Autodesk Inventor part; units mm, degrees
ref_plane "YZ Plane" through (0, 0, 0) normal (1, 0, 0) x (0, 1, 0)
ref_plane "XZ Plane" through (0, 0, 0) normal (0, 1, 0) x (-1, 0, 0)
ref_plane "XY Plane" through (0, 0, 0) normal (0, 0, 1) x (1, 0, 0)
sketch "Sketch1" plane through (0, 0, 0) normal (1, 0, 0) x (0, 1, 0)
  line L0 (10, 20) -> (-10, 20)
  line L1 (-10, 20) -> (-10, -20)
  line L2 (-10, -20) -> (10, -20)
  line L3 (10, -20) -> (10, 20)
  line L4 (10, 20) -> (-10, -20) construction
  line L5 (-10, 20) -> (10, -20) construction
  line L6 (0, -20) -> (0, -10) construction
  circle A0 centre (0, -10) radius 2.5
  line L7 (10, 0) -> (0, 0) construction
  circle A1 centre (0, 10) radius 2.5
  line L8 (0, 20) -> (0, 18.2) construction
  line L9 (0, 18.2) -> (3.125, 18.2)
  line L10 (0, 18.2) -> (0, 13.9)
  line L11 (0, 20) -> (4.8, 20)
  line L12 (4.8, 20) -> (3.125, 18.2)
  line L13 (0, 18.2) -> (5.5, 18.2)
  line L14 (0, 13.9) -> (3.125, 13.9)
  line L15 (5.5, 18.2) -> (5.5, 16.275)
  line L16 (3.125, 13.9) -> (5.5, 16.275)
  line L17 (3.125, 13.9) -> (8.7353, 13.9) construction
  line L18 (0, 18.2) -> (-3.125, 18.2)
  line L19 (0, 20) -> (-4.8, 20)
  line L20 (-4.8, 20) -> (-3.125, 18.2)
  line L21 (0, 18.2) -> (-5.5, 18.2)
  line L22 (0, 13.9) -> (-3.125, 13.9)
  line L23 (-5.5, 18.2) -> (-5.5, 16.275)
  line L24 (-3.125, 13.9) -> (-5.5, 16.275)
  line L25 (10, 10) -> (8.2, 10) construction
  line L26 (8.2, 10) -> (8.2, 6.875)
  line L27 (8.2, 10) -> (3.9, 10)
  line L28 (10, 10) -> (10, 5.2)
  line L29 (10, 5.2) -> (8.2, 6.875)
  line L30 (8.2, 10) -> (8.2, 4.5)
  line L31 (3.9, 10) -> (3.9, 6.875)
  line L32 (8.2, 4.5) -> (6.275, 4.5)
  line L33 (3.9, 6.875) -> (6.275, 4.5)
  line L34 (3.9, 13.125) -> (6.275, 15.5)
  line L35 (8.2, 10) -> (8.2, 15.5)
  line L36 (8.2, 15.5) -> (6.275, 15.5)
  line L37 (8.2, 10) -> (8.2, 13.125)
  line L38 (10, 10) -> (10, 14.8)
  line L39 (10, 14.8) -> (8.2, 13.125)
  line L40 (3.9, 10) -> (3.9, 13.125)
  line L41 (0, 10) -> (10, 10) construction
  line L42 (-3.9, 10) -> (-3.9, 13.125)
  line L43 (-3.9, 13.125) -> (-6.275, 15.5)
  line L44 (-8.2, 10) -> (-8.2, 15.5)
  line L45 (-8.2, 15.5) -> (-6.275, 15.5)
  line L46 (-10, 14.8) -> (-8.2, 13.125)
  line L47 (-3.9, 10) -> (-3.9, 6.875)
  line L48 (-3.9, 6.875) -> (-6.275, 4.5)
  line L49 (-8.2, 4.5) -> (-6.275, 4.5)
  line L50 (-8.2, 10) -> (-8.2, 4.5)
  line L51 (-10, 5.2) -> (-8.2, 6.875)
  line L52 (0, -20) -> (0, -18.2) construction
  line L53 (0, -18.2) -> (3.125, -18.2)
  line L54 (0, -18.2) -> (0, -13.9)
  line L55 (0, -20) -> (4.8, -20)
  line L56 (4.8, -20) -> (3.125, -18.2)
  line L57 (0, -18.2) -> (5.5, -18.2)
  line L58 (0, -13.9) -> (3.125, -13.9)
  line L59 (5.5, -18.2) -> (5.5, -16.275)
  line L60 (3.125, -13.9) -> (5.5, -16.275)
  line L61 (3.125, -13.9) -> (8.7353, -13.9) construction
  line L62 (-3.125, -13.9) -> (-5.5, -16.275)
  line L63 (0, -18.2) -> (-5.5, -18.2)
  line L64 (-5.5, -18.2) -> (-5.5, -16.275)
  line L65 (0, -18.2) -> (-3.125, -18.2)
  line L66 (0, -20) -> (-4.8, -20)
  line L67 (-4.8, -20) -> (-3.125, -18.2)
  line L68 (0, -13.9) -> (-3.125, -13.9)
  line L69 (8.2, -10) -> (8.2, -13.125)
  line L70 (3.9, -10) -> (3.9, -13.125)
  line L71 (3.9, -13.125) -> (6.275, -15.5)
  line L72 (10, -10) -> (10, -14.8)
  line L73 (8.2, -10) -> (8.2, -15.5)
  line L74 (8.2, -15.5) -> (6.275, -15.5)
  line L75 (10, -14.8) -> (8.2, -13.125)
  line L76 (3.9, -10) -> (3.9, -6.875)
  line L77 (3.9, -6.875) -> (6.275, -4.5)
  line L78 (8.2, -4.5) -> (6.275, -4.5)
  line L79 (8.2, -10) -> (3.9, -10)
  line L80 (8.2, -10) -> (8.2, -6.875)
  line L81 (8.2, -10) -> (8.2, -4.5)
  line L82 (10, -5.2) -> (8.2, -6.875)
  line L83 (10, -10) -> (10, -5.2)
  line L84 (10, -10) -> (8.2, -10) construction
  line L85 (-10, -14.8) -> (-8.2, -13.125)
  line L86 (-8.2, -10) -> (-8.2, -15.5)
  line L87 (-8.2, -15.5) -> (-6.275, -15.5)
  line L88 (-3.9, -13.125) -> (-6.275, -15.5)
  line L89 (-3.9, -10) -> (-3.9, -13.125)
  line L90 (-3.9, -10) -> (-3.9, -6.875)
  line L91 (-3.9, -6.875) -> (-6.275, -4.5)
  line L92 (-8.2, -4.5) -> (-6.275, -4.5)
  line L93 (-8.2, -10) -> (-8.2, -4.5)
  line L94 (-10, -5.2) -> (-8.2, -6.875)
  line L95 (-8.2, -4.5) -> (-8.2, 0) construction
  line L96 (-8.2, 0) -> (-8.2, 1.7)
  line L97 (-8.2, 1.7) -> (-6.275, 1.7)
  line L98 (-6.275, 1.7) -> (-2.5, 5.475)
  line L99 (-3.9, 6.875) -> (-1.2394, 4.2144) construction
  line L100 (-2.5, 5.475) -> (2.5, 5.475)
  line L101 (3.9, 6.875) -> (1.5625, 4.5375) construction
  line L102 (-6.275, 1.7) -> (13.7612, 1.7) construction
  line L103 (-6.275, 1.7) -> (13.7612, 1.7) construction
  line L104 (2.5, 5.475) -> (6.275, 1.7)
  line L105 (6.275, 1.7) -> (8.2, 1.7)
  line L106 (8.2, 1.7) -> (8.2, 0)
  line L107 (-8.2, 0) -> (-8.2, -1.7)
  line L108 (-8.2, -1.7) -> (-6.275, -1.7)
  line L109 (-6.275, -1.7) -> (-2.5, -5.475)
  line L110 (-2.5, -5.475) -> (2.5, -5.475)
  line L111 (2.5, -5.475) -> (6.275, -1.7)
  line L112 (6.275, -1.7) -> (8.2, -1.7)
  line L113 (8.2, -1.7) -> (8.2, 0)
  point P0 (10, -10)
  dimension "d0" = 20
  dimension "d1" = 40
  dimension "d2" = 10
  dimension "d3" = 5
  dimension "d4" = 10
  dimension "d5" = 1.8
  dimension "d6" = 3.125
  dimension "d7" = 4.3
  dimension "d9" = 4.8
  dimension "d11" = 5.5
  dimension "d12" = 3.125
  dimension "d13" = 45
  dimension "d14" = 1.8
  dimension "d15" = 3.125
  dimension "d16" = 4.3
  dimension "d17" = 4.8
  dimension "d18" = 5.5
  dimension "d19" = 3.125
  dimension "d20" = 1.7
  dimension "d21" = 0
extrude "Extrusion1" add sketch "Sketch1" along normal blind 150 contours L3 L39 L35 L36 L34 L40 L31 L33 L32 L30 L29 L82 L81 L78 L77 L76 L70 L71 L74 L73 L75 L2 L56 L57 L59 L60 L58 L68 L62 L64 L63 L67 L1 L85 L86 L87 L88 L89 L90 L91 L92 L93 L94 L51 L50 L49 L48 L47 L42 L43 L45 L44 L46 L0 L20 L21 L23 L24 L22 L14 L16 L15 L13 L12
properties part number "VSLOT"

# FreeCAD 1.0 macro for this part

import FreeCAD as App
import Part
import Sketcher
Q = App.Units.Quantity


def add_polygon(sketch, points):
    """Adds a closed chain of lines whose ends are joined by coincident constraints."""
    first, n = sketch.GeometryCount, len(points)
    for a, b in zip(points, points[1:] + points[:1]):
        sketch.addGeometry(Part.LineSegment(App.Vector(*a, 0), App.Vector(*b, 0)), False)
    for i in range(n):
        sketch.addConstraint(Sketcher.Constraint("Coincident", first + i, 2, first + (i + 1) % n, 1))

doc = App.newDocument("Part")
body = doc.addObject("PartDesign::Body", "Body")

sketch1 = body.newObject("Sketcher::SketchObject", "Sketch")
sketch1.AttachmentSupport = (doc.getObject("YZ_Plane"), [""])
sketch1.MapMode = "FlatFace"
add_polygon(sketch1, [(10, 14.8), (10, 20), (4.8, 20), (3.1, 18.2), (5.5, 18.2), (5.5, 16.3), (3.1, 13.9), (-3.1, 13.9), (-5.5, 16.3), (-5.5, 18.2), (-3.1, 18.2), (-4.8, 20), (-10, 20), (-10, 14.8), (-8.2, 13.1), (-8.2, 15.5), (-6.3, 15.5), (-3.9, 13.1), (-3.9, 6.9), (-6.3, 4.5), (-8.2, 4.5), (-8.2, 6.9), (-10, 5.2), (-10, -5.2), (-8.2, -6.9), (-8.2, -4.5), (-6.3, -4.5), (-3.9, -6.9), (-3.9, -13.1), (-6.3, -15.5), (-8.2, -15.5), (-8.2, -13.1), (-10, -14.8), (-10, -20), (-4.8, -20), (-3.1, -18.2), (-5.5, -18.2), (-5.5, -16.3), (-3.1, -13.9), (3.1, -13.9), (5.5, -16.3), (5.5, -18.2), (3.1, -18.2), (4.8, -20), (10, -20), (10, -14.8), (8.2, -13.1), (8.2, -15.5), (6.3, -15.5), (3.9, -13.1), (3.9, -6.9), (6.3, -4.5), (8.2, -4.5), (8.2, -6.9), (10, -5.2), (10, 5.2), (8.2, 6.9), (8.2, 4.5), (6.3, 4.5), (3.9, 6.9), (3.9, 13.1), (6.3, 15.5), (8.2, 15.5), (8.2, 13.1)])
sketch1.addGeometry(Part.Circle(App.Vector(0, -10, 0), App.Vector(0, 0, 1), 2.5), False)
add_polygon(sketch1, [(-8.2, -1.7), (-8.2, 1.7), (-6.3, 1.7), (-2.5, 5.5), (2.5, 5.5), (6.3, 1.7), (8.2, 1.7), (8.2, -1.7), (6.3, -1.7), (2.5, -5.5), (-2.5, -5.5), (-6.3, -1.7)])
sketch1.addGeometry(Part.Circle(App.Vector(0, 10, 0), App.Vector(0, 0, 1), 2.5), False)
sketch1.addConstraint(Sketcher.Constraint("Vertical", 0))
sketch1.addConstraint(Sketcher.Constraint("Horizontal", 1))
sketch1.addConstraint(Sketcher.Constraint("Horizontal", 3))
sketch1.addConstraint(Sketcher.Constraint("Vertical", 4))
sketch1.addConstraint(Sketcher.Constraint("Horizontal", 6))
sketch1.addConstraint(Sketcher.Constraint("Vertical", 8))
sketch1.addConstraint(Sketcher.Constraint("Horizontal", 9))
sketch1.addConstraint(Sketcher.Constraint("Horizontal", 11))
sketch1.addConstraint(Sketcher.Constraint("Vertical", 12))
sketch1.addConstraint(Sketcher.Constraint("Vertical", 14))
sketch1.addConstraint(Sketcher.Constraint("Horizontal", 15))
sketch1.addConstraint(Sketcher.Constraint("Vertical", 17))
sketch1.addConstraint(Sketcher.Constraint("Horizontal", 19))
sketch1.addConstraint(Sketcher.Constraint("Vertical", 20))
sketch1.addConstraint(Sketcher.Constraint("Vertical", 22))
sketch1.addConstraint(Sketcher.Constraint("Vertical", 24))
sketch1.addConstraint(Sketcher.Constraint("Horizontal", 25))
sketch1.addConstraint(Sketcher.Constraint("Vertical", 27))
sketch1.addConstraint(Sketcher.Constraint("Horizontal", 29))
sketch1.addConstraint(Sketcher.Constraint("Vertical", 30))
sketch1.addConstraint(Sketcher.Constraint("Vertical", 32))
sketch1.addConstraint(Sketcher.Constraint("Horizontal", 33))
sketch1.addConstraint(Sketcher.Constraint("Horizontal", 35))
sketch1.addConstraint(Sketcher.Constraint("Vertical", 36))
sketch1.addConstraint(Sketcher.Constraint("Horizontal", 38))
sketch1.addConstraint(Sketcher.Constraint("Vertical", 40))
sketch1.addConstraint(Sketcher.Constraint("Horizontal", 41))
sketch1.addConstraint(Sketcher.Constraint("Horizontal", 43))
sketch1.addConstraint(Sketcher.Constraint("Vertical", 44))
sketch1.addConstraint(Sketcher.Constraint("Vertical", 46))
sketch1.addConstraint(Sketcher.Constraint("Horizontal", 47))
sketch1.addConstraint(Sketcher.Constraint("Vertical", 49))
sketch1.addConstraint(Sketcher.Constraint("Horizontal", 51))
sketch1.addConstraint(Sketcher.Constraint("Vertical", 52))
sketch1.addConstraint(Sketcher.Constraint("Vertical", 54))
sketch1.addConstraint(Sketcher.Constraint("Vertical", 56))
sketch1.addConstraint(Sketcher.Constraint("Horizontal", 57))
sketch1.addConstraint(Sketcher.Constraint("Vertical", 59))
sketch1.addConstraint(Sketcher.Constraint("Horizontal", 61))
sketch1.addConstraint(Sketcher.Constraint("Vertical", 62))
sketch1.addConstraint(Sketcher.Constraint("Vertical", 65))
sketch1.addConstraint(Sketcher.Constraint("Horizontal", 66))
sketch1.addConstraint(Sketcher.Constraint("Horizontal", 68))
sketch1.addConstraint(Sketcher.Constraint("Horizontal", 70))
sketch1.addConstraint(Sketcher.Constraint("Vertical", 71))
sketch1.addConstraint(Sketcher.Constraint("Horizontal", 72))
sketch1.addConstraint(Sketcher.Constraint("Horizontal", 74))
sketch1.addConstraint(Sketcher.Constraint("Horizontal", 76))
sketch1.addConstraint(Sketcher.Constraint("Equal", 64, 77))
sketch1.addConstraint(Sketcher.Constraint("Symmetric", 64, 3, 77, 3, -1, 1))
sketch1.addConstraint(Sketcher.Constraint("Symmetric", 0, 2, 32, 2, -1, 1))
sketch1.addConstraint(Sketcher.Constraint("Symmetric", 2, 2, 34, 2, -1, 1))
sketch1.addConstraint(Sketcher.Constraint("Symmetric", 4, 2, 36, 2, -1, 1))
sketch1.addConstraint(Sketcher.Constraint("Symmetric", 5, 2, 37, 2, -1, 1))
sketch1.addConstraint(Sketcher.Constraint("Symmetric", 7, 2, 39, 2, -1, 1))
sketch1.addConstraint(Sketcher.Constraint("Symmetric", 9, 2, 41, 2, -1, 1))
sketch1.addConstraint(Sketcher.Constraint("Symmetric", 10, 2, 42, 2, -1, 1))
sketch1.addConstraint(Sketcher.Constraint("Symmetric", 12, 2, 44, 2, -1, 1))
sketch1.addConstraint(Sketcher.Constraint("Symmetric", 13, 2, 45, 2, -1, 1))
sketch1.addConstraint(Sketcher.Constraint("Symmetric", 15, 2, 47, 2, -1, 1))
sketch1.addConstraint(Sketcher.Constraint("Symmetric", 16, 2, 48, 2, -1, 1))
sketch1.addConstraint(Sketcher.Constraint("Symmetric", 18, 2, 50, 2, -1, 1))
sketch1.addConstraint(Sketcher.Constraint("Symmetric", 20, 2, 52, 2, -1, 1))
sketch1.addConstraint(Sketcher.Constraint("Symmetric", 21, 2, 53, 2, -1, 1))
sketch1.addConstraint(Sketcher.Constraint("Symmetric", 23, 2, 55, 2, -1, 1))
sketch1.addConstraint(Sketcher.Constraint("Symmetric", 25, 2, 57, 2, -1, 1))
sketch1.addConstraint(Sketcher.Constraint("Symmetric", 26, 2, 58, 2, -1, 1))
sketch1.addConstraint(Sketcher.Constraint("Symmetric", 28, 2, 60, 2, -1, 1))
sketch1.addConstraint(Sketcher.Constraint("Symmetric", 30, 2, 62, 2, -1, 1))
sketch1.addConstraint(Sketcher.Constraint("Symmetric", 65, 2, 71, 2, -1, 1))
sketch1.addConstraint(Sketcher.Constraint("Symmetric", 67, 2, 73, 2, -1, 1))
sketch1.addConstraint(Sketcher.Constraint("Symmetric", 69, 2, 75, 2, -1, 1))
sketch1.addConstraint(Sketcher.Constraint("Symmetric", 4, 2, 7, 2, -2))
sketch1.addConstraint(Sketcher.Constraint("Symmetric", 2, 2, 9, 2, -2))
sketch1.addConstraint(Sketcher.Constraint("Symmetric", 1, 2, 10, 2, -2))
sketch1.addConstraint(Sketcher.Constraint("Symmetric", 31, 2, 44, 2, -2))
sketch1.addConstraint(Sketcher.Constraint("Symmetric", 30, 2, 45, 2, -2))
sketch1.addConstraint(Sketcher.Constraint("Symmetric", 28, 2, 47, 2, -2))
sketch1.addConstraint(Sketcher.Constraint("Symmetric", 27, 2, 48, 2, -2))
sketch1.addConstraint(Sketcher.Constraint("Symmetric", 25, 2, 50, 2, -2))
sketch1.addConstraint(Sketcher.Constraint("Symmetric", 23, 2, 52, 2, -2))
sketch1.addConstraint(Sketcher.Constraint("Symmetric", 66, 2, 69, 2, -2))
sketch1.addConstraint(Sketcher.Constraint("PointOnObject", 64, 3, -2))
sketch1.addConstraint(Sketcher.Constraint("Perpendicular", 5, 7))
sketch1.addConstraint(Sketcher.Constraint("Perpendicular", 2, 13))
sketch1.addConstraint(Sketcher.Constraint("Parallel", 7, 16))
sketch1.addConstraint(Sketcher.Constraint("Perpendicular", 16, 18))
sketch1.addConstraint(Sketcher.Constraint("Perpendicular", 10, 21))
sketch1.addConstraint(Sketcher.Constraint("Parallel", 13, 23))
sketch1.addConstraint(Sketcher.Constraint("Perpendicular", 18, 26))
sketch1.addConstraint(Sketcher.Constraint("Perpendicular", 26, 28))
sketch1.addConstraint(Sketcher.Constraint("Perpendicular", 23, 34))
sketch1.addConstraint(Sketcher.Constraint("Perpendicular", 37, 39))
sketch1.addConstraint(Sketcher.Constraint("Perpendicular", 48, 50))
sketch1.addConstraint(Sketcher.Constraint("Parallel", 45, 55))
sketch1.addConstraint(Sketcher.Constraint("Perpendicular", 58, 60))
sketch1.addConstraint(Sketcher.Constraint("Parallel", 53, 63))
sketch1.addConstraint(Sketcher.Constraint("Parallel", 60, 67))
sketch1.addConstraint(Sketcher.Constraint("Perpendicular", 67, 69))
sketch1.addConstraint(Sketcher.Constraint("Perpendicular", 69, 73))
sketch1.addConstraint(Sketcher.Constraint("Perpendicular", 73, 75))
sketch1.addConstraint(Sketcher.Constraint("Horizontal", 13, 2, 16, 2))
sketch1.addConstraint(Sketcher.Constraint("Horizontal", 17, 2, 20, 2))
sketch1.addConstraint(Sketcher.Constraint("Vertical", 2, 2, 5, 2))
sketch1.addConstraint(Sketcher.Constraint("Vertical", 15, 2, 18, 2))
sketch1.addConstraint(Sketcher.Constraint("Vertical", 14, 2, 19, 2))
sketch1.addConstraint(Sketcher.Constraint("Vertical", 12, 2, 21, 2))
sketch1.addConstraint(Sketcher.Constraint("Vertical", 30, 2, 65, 2))
sketch1.addConstraint(Sketcher.Constraint("Vertical", 28, 2, 66, 2))
sketch1.addConstraint(Sketcher.Constraint("Equal", 43, 0))
sketch1.addConstraint(Sketcher.Constraint("Equal", 76, 4))
sketch1.addConstraint(Sketcher.Constraint("Equal", 41, 14))
sketch1.addConstraint(Sketcher.Constraint("Equal", 38, 17))
sketch1.addConstraint(Sketcher.Constraint("Equal", 10, 13))
sketch1.addConstraint(Sketcher.Constraint("Diameter", 64, Q("5 mm")))
sketch1.addConstraint(Sketcher.Constraint("DistanceX", 68, 1, 68, 2, Q("5 mm")))
sketch1.addConstraint(Sketcher.Constraint("DistanceY", 64, 3, -1, 1, Q("10 mm")))
sketch1.addConstraint(Sketcher.Constraint("DistanceX", -1, 1, 0, 2, Q("10 mm")))
sketch1.addConstraint(Sketcher.Constraint("DistanceY", -1, 1, 0, 2, Q("20 mm")))
sketch1.addConstraint(Sketcher.Constraint("DistanceX", -1, 1, 1, 2, Q("4.8 mm")))
sketch1.addConstraint(Sketcher.Constraint("DistanceX", -1, 1, 3, 2, Q("5.5 mm")))
sketch1.addConstraint(Sketcher.Constraint("DistanceY", -1, 1, 65, 2, Q("1.7 mm")))
sketch1.addConstraint(Sketcher.Constraint("DistanceX", -1, 1, 2, 2, Q("3.125 mm")))
sketch1.addConstraint(Sketcher.Constraint("DistanceY", -1, 1, 2, 2, Q("18.2 mm")))
sketch1.addConstraint(Sketcher.Constraint("DistanceY", -1, 1, 5, 2, Q("13.9 mm")))
pad1 = body.newObject("PartDesign::Pad", "Pad")
pad1.Profile = sketch1
pad1.Length = 150

doc.recompute()
